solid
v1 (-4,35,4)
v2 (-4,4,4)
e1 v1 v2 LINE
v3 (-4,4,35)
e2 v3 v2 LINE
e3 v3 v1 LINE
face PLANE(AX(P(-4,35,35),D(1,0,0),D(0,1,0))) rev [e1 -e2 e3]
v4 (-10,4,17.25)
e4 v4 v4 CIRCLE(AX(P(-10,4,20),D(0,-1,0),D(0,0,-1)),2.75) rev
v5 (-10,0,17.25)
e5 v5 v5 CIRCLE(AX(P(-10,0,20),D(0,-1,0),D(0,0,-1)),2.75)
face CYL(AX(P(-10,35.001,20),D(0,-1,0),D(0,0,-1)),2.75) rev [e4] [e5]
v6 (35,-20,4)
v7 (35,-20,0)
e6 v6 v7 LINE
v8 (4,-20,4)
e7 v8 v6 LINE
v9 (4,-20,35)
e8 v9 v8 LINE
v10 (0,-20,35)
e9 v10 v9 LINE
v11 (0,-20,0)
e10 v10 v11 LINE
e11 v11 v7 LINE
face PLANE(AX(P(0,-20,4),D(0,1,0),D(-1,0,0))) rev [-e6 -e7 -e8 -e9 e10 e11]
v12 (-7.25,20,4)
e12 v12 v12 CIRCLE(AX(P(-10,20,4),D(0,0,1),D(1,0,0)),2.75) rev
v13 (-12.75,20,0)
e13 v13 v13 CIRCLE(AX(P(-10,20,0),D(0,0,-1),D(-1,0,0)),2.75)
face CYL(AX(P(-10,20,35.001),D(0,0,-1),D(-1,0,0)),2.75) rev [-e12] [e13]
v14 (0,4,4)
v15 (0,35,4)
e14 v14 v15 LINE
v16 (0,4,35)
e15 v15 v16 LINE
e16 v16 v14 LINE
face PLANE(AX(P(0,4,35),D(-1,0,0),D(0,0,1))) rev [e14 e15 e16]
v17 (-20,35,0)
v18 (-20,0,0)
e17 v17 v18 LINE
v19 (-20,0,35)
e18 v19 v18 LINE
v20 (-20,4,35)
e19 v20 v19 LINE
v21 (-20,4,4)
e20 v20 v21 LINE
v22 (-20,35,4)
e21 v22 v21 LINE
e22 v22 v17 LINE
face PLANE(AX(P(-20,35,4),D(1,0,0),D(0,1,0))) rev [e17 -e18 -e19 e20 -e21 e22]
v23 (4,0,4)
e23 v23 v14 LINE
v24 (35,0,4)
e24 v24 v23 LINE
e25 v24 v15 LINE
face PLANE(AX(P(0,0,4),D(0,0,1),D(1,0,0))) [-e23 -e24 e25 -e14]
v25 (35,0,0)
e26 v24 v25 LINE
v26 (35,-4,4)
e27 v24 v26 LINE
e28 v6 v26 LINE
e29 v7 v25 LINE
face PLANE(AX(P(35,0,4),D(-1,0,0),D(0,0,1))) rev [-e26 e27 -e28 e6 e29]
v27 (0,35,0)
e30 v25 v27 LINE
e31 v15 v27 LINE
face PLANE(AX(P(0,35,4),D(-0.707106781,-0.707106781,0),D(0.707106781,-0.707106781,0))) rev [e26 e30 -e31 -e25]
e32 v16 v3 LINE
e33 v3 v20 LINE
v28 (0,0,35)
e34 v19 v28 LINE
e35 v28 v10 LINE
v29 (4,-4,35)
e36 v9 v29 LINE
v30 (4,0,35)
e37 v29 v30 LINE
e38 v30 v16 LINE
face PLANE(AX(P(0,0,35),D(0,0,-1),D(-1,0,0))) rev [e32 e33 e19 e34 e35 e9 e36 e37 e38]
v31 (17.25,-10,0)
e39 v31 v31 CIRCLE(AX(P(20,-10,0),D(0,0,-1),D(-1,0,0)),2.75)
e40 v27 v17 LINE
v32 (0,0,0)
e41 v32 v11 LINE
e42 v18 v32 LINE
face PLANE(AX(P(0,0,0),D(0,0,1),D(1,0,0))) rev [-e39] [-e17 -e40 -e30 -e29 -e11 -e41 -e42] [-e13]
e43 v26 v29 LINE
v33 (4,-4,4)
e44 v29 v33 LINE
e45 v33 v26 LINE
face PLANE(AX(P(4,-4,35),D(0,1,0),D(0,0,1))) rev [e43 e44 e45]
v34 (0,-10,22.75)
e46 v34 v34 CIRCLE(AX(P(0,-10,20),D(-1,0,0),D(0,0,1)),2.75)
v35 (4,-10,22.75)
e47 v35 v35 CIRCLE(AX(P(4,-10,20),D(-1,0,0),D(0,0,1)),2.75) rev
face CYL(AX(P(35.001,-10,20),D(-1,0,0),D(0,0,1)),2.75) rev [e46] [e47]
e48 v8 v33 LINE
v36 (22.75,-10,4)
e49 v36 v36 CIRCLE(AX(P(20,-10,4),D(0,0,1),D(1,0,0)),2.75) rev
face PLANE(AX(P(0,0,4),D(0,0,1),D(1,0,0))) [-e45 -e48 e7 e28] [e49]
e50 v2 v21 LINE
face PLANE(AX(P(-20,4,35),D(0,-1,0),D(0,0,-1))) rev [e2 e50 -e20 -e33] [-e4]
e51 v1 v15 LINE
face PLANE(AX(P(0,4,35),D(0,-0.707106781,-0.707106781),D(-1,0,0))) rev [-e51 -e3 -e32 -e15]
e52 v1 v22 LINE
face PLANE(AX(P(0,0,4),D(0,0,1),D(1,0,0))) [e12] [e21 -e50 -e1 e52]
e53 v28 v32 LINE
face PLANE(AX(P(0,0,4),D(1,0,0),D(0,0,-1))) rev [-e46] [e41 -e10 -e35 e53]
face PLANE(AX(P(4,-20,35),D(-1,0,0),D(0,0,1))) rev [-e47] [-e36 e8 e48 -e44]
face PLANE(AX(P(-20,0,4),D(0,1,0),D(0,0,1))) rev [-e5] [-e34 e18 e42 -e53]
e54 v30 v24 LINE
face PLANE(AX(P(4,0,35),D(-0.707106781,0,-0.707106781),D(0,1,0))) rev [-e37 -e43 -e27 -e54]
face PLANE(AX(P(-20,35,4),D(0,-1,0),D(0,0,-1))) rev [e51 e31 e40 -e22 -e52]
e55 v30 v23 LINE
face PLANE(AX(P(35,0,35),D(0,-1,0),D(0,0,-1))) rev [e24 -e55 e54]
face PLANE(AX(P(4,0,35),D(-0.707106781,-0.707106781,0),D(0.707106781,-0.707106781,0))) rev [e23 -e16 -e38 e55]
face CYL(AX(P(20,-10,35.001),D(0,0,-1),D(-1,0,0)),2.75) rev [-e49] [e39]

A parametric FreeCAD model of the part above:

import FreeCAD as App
import Part
import Sketcher

V = App.Vector


def edges_at(feature, points):
    """Names of the edges that pass closest to the given points."""
    edges = feature.Shape.Edges
    near = lambda p: min(range(len(edges)), key=lambda i: edges[i].distToShape(Part.Vertex(*p))[0])
    return sorted({f"Edge{near(p) + 1}" for p in points})

doc = App.newDocument("Part")
params = doc.addObject("Spreadsheet::Sheet", "Params")
for row, (alias, value) in enumerate([
    ("sketch1_width", "20 mm"),
    ("sketch1_width2", "35 mm"),
    ("pad1_length", "4 mm"),
    ("sketch2_width", "20 mm"),
    ("sketch2_width2", "4 mm"),
    ("sketch2_width3", "31 mm"),
    ("pad2_length", "31 mm"),
    ("chamfer_size", "31 mm"),
    ("sketch3_diameter", "5.5 mm"),
    ("sketch4_diameter", "5.5 mm"),
    ("sketch5_diameter", "5.5 mm"),
    ("sketch6_diameter", "5.5 mm"),
], start=1):
    params.set(f"A{row}", alias)
    params.set(f"B{row}", "=" + value)
    params.setAlias(f"B{row}", alias)

body = doc.addObject("PartDesign::Body", "Body")

sketch1 = doc.addObject("Sketcher::SketchObject", "Sketch")
body.addObject(sketch1)
sketch1.AttachmentSupport = (doc.XY_Plane, [""])
sketch1.MapMode = "FlatFace"
sketch1.addGeometry(Part.LineSegment(V(35, 0, 0), V(0, 35, 0)), False)
sketch1.addGeometry(Part.LineSegment(V(0, 35, 0), V(-20, 35, 0)), False)
sketch1.addGeometry(Part.LineSegment(V(-20, 35, 0), V(-20, 0, 0)), False)
sketch1.addGeometry(Part.LineSegment(V(-20, 0, 0), V(0, 0, 0)), False)
sketch1.addGeometry(Part.LineSegment(V(0, 0, 0), V(0, -20, 0)), False)
sketch1.addGeometry(Part.LineSegment(V(0, -20, 0), V(35, -20, 0)), False)
sketch1.addGeometry(Part.LineSegment(V(35, -20, 0), V(35, 0, 0)), False)
sketch1.addConstraint(Sketcher.Constraint("Coincident", 0, 2, 1, 1))
sketch1.addConstraint(Sketcher.Constraint("Coincident", 1, 2, 2, 1))
sketch1.addConstraint(Sketcher.Constraint("Coincident", 2, 2, 3, 1))
sketch1.addConstraint(Sketcher.Constraint("Coincident", 3, 2, 4, 1))
sketch1.addConstraint(Sketcher.Constraint("Coincident", 4, 2, 5, 1))
sketch1.addConstraint(Sketcher.Constraint("Coincident", 5, 2, 6, 1))
sketch1.addConstraint(Sketcher.Constraint("Coincident", 6, 2, 0, 1))
sketch1.addConstraint(Sketcher.Constraint("Horizontal", 1))
sketch1.addConstraint(Sketcher.Constraint("Vertical", 2))
sketch1.addConstraint(Sketcher.Constraint("Horizontal", 3))
sketch1.addConstraint(Sketcher.Constraint("Vertical", 4))
sketch1.addConstraint(Sketcher.Constraint("Horizontal", 5))
sketch1.addConstraint(Sketcher.Constraint("Vertical", 6))
sketch1.addConstraint(Sketcher.Constraint("Coincident", 3, 2, -1, 1))
sketch1.addConstraint(Sketcher.Constraint("PointOnObject", 0, 2, -2))
sketch1.addConstraint(Sketcher.Constraint("PointOnObject", 6, 2, -1))
sketch1.addConstraint(Sketcher.Constraint("Equal", 5, 2))
sketch1.addConstraint(Sketcher.Constraint("Equal", 3, 4))
sketch1.addConstraint(Sketcher.Constraint("DistanceX", 1, 2, 1, 1, 20.0))
sketch1.addConstraint(Sketcher.Constraint("DistanceX", 5, 1, 5, 2, 35.0))
sketch1.setExpression("Constraints[18]", "Params.sketch1_width")
sketch1.setExpression("Constraints[19]", "Params.sketch1_width2")
pad1 = doc.addObject("PartDesign::Pad", "Pad")
body.addObject(pad1)
pad1.Profile = sketch1
pad1.setExpression("Length", "Params.pad1_length")

sketch2 = doc.addObject("Sketcher::SketchObject", "Sketch001")
body.addObject(sketch2)
sketch2.AttachmentSupport = (doc.XY_Plane, [""])
sketch2.MapMode = "FlatFace"
sketch2.AttachmentOffset = App.Placement(V(0, 0, 4), App.Rotation())
sketch2.addGeometry(Part.LineSegment(V(-20, 0, 0), V(0, 0, 0)), False)
sketch2.addGeometry(Part.LineSegment(V(0, 0, 0), V(0, -20, 0)), False)
sketch2.addGeometry(Part.LineSegment(V(0, -20, 0), V(4, -20, 0)), False)
sketch2.addGeometry(Part.LineSegment(V(4, -20, 0), V(4, -4, 0)), False)
sketch2.addGeometry(Part.LineSegment(V(4, -4, 0), V(35, -4, 0)), False)
sketch2.addGeometry(Part.LineSegment(V(35, -4, 0), V(35, 0, 0)), False)
sketch2.addGeometry(Part.LineSegment(V(35, 0, 0), V(4, 0, 0)), False)
sketch2.addGeometry(Part.LineSegment(V(4, 0, 0), V(0, 4, 0)), False)
sketch2.addGeometry(Part.LineSegment(V(0, 4, 0), V(0, 35, 0)), False)
sketch2.addGeometry(Part.LineSegment(V(0, 35, 0), V(-4, 35, 0)), False)
sketch2.addGeometry(Part.LineSegment(V(-4, 35, 0), V(-4, 4, 0)), False)
sketch2.addGeometry(Part.LineSegment(V(-4, 4, 0), V(-20, 4, 0)), False)
sketch2.addGeometry(Part.LineSegment(V(-20, 4, 0), V(-20, 0, 0)), False)
sketch2.addConstraint(Sketcher.Constraint("Coincident", 0, 2, 1, 1))
sketch2.addConstraint(Sketcher.Constraint("Coincident", 1, 2, 2, 1))
sketch2.addConstraint(Sketcher.Constraint("Coincident", 2, 2, 3, 1))
sketch2.addConstraint(Sketcher.Constraint("Coincident", 3, 2, 4, 1))
sketch2.addConstraint(Sketcher.Constraint("Coincident", 4, 2, 5, 1))
sketch2.addConstraint(Sketcher.Constraint("Coincident", 5, 2, 6, 1))
sketch2.addConstraint(Sketcher.Constraint("Coincident", 6, 2, 7, 1))
sketch2.addConstraint(Sketcher.Constraint("Coincident", 7, 2, 8, 1))
sketch2.addConstraint(Sketcher.Constraint("Coincident", 8, 2, 9, 1))
sketch2.addConstraint(Sketcher.Constraint("Coincident", 9, 2, 10, 1))
sketch2.addConstraint(Sketcher.Constraint("Coincident", 10, 2, 11, 1))
sketch2.addConstraint(Sketcher.Constraint("Coincident", 11, 2, 12, 1))
sketch2.addConstraint(Sketcher.Constraint("Coincident", 12, 2, 0, 1))
sketch2.addConstraint(Sketcher.Constraint("Horizontal", 0))
sketch2.addConstraint(Sketcher.Constraint("Vertical", 1))
sketch2.addConstraint(Sketcher.Constraint("Horizontal", 2))
sketch2.addConstraint(Sketcher.Constraint("Vertical", 3))
sketch2.addConstraint(Sketcher.Constraint("Horizontal", 4))
sketch2.addConstraint(Sketcher.Constraint("Vertical", 5))
sketch2.addConstraint(Sketcher.Constraint("Horizontal", 6))
sketch2.addConstraint(Sketcher.Constraint("Vertical", 8))
sketch2.addConstraint(Sketcher.Constraint("Horizontal", 9))
sketch2.addConstraint(Sketcher.Constraint("Vertical", 10))
sketch2.addConstraint(Sketcher.Constraint("Horizontal", 11))
sketch2.addConstraint(Sketcher.Constraint("Vertical", 12))
sketch2.addConstraint(Sketcher.Constraint("Coincident", 0, 2, -1, 1))
sketch2.addConstraint(Sketcher.Constraint("Symmetric", 3, 2, 10, 2, -1, 1))
sketch2.addConstraint(Sketcher.Constraint("PointOnObject", 5, 2, -1))
sketch2.addConstraint(Sketcher.Constraint("PointOnObject", 7, 2, -2))
sketch2.addConstraint(Sketcher.Constraint("Horizontal", 7, 2, 10, 2))
sketch2.addConstraint(Sketcher.Constraint("Vertical", 3, 2, 6, 2))
sketch2.addConstraint(Sketcher.Constraint("Equal", 0, 1))
sketch2.addConstraint(Sketcher.Constraint("Equal", 11, 3))
sketch2.addConstraint(Sketcher.Constraint("Equal", 6, 8))
sketch2.addConstraint(Sketcher.Constraint("DistanceX", 0, 1, 0, 2, 20.0))
sketch2.addConstraint(Sketcher.Constraint("DistanceX", 2, 1, 2, 2, 4.0))
sketch2.addConstraint(Sketcher.Constraint("DistanceX", 4, 1, 4, 2, 31.0))
sketch2.setExpression("Constraints[34]", "Params.sketch2_width")
sketch2.setExpression("Constraints[35]", "Params.sketch2_width2")
sketch2.setExpression("Constraints[36]", "Params.sketch2_width3")
pad2 = doc.addObject("PartDesign::Pad", "Pad001")
body.addObject(pad2)
pad2.Profile = sketch2
pad2.setExpression("Length", "Params.pad2_length")
doc.recompute()

chamfer = doc.addObject("PartDesign::Chamfer", "Chamfer")
body.addObject(chamfer)
chamfer.Base = (pad2, edges_at(pad2, [(-2, 35, 35), (35, -2, 35)]))
chamfer.setExpression("Size", "Params.chamfer_size")

sketch3 = doc.addObject("Sketcher::SketchObject", "Sketch002")
body.addObject(sketch3)
sketch3.AttachmentSupport = (doc.XY_Plane, [""])
sketch3.MapMode = "FlatFace"
sketch3.addGeometry(Part.Circle(V(-10, 20, 0), V(0, 0, 1), 2.8), False)
sketch3.addConstraint(Sketcher.Constraint("Diameter", 0, 5.5))
sketch3.addConstraint(Sketcher.Constraint("DistanceX", 0, 3, -1, 1, 10.0))
sketch3.addConstraint(Sketcher.Constraint("DistanceY", -1, 1, 0, 3, 20.0))
sketch3.setExpression("Constraints[0]", "Params.sketch3_diameter")
pocket1 = doc.addObject("PartDesign::Pocket", "Pocket")
body.addObject(pocket1)
pocket1.Profile = sketch3
pocket1.Type = "UpToFirst"
pocket1.Reversed = True

sketch4 = doc.addObject("Sketcher::SketchObject", "Sketch003")
body.addObject(sketch4)
sketch4.AttachmentSupport = (doc.XY_Plane, [""])
sketch4.MapMode = "FlatFace"
sketch4.addGeometry(Part.Circle(V(20, -10, 0), V(0, 0, 1), 2.8), False)
sketch4.addConstraint(Sketcher.Constraint("Diameter", 0, 5.5))
sketch4.addConstraint(Sketcher.Constraint("DistanceX", -1, 1, 0, 3, 20.0))
sketch4.addConstraint(Sketcher.Constraint("DistanceY", 0, 3, -1, 1, 10.0))
sketch4.setExpression("Constraints[0]", "Params.sketch4_diameter")
pocket2 = doc.addObject("PartDesign::Pocket", "Pocket001")
body.addObject(pocket2)
pocket2.Profile = sketch4
pocket2.Type = "UpToFirst"
pocket2.Reversed = True

sketch5 = doc.addObject("Sketcher::SketchObject", "Sketch004")
body.addObject(sketch5)
sketch5.AttachmentSupport = (doc.XZ_Plane, [""])
sketch5.MapMode = "FlatFace"
sketch5.addGeometry(Part.Circle(V(-10, 20, 0), V(0, 0, 1), 2.8), False)
sketch5.addConstraint(Sketcher.Constraint("Diameter", 0, 5.5))
sketch5.addConstraint(Sketcher.Constraint("DistanceX", 0, 3, -1, 1, 10.0))
sketch5.addConstraint(Sketcher.Constraint("DistanceY", -1, 1, 0, 3, 20.0))
sketch5.setExpression("Constraints[0]", "Params.sketch5_diameter")
pocket3 = doc.addObject("PartDesign::Pocket", "Pocket002")
body.addObject(pocket3)
pocket3.Profile = sketch5
pocket3.Type = "UpToFirst"

sketch6 = doc.addObject("Sketcher::SketchObject", "Sketch005")
body.addObject(sketch6)
sketch6.AttachmentSupport = (doc.YZ_Plane, [""])
sketch6.MapMode = "FlatFace"
sketch6.addGeometry(Part.Circle(V(-10, 20, 0), V(0, 0, 1), 2.8), False)
sketch6.addConstraint(Sketcher.Constraint("Diameter", 0, 5.5))
sketch6.addConstraint(Sketcher.Constraint("DistanceX", 0, 3, -1, 1, 10.0))
sketch6.addConstraint(Sketcher.Constraint("DistanceY", -1, 1, 0, 3, 20.0))
sketch6.setExpression("Constraints[0]", "Params.sketch6_diameter")
pocket4 = doc.addObject("PartDesign::Pocket", "Pocket003")
body.addObject(pocket4)
pocket4.Profile = sketch6
pocket4.Type = "UpToFirst"
pocket4.Reversed = True

doc.recompute()
